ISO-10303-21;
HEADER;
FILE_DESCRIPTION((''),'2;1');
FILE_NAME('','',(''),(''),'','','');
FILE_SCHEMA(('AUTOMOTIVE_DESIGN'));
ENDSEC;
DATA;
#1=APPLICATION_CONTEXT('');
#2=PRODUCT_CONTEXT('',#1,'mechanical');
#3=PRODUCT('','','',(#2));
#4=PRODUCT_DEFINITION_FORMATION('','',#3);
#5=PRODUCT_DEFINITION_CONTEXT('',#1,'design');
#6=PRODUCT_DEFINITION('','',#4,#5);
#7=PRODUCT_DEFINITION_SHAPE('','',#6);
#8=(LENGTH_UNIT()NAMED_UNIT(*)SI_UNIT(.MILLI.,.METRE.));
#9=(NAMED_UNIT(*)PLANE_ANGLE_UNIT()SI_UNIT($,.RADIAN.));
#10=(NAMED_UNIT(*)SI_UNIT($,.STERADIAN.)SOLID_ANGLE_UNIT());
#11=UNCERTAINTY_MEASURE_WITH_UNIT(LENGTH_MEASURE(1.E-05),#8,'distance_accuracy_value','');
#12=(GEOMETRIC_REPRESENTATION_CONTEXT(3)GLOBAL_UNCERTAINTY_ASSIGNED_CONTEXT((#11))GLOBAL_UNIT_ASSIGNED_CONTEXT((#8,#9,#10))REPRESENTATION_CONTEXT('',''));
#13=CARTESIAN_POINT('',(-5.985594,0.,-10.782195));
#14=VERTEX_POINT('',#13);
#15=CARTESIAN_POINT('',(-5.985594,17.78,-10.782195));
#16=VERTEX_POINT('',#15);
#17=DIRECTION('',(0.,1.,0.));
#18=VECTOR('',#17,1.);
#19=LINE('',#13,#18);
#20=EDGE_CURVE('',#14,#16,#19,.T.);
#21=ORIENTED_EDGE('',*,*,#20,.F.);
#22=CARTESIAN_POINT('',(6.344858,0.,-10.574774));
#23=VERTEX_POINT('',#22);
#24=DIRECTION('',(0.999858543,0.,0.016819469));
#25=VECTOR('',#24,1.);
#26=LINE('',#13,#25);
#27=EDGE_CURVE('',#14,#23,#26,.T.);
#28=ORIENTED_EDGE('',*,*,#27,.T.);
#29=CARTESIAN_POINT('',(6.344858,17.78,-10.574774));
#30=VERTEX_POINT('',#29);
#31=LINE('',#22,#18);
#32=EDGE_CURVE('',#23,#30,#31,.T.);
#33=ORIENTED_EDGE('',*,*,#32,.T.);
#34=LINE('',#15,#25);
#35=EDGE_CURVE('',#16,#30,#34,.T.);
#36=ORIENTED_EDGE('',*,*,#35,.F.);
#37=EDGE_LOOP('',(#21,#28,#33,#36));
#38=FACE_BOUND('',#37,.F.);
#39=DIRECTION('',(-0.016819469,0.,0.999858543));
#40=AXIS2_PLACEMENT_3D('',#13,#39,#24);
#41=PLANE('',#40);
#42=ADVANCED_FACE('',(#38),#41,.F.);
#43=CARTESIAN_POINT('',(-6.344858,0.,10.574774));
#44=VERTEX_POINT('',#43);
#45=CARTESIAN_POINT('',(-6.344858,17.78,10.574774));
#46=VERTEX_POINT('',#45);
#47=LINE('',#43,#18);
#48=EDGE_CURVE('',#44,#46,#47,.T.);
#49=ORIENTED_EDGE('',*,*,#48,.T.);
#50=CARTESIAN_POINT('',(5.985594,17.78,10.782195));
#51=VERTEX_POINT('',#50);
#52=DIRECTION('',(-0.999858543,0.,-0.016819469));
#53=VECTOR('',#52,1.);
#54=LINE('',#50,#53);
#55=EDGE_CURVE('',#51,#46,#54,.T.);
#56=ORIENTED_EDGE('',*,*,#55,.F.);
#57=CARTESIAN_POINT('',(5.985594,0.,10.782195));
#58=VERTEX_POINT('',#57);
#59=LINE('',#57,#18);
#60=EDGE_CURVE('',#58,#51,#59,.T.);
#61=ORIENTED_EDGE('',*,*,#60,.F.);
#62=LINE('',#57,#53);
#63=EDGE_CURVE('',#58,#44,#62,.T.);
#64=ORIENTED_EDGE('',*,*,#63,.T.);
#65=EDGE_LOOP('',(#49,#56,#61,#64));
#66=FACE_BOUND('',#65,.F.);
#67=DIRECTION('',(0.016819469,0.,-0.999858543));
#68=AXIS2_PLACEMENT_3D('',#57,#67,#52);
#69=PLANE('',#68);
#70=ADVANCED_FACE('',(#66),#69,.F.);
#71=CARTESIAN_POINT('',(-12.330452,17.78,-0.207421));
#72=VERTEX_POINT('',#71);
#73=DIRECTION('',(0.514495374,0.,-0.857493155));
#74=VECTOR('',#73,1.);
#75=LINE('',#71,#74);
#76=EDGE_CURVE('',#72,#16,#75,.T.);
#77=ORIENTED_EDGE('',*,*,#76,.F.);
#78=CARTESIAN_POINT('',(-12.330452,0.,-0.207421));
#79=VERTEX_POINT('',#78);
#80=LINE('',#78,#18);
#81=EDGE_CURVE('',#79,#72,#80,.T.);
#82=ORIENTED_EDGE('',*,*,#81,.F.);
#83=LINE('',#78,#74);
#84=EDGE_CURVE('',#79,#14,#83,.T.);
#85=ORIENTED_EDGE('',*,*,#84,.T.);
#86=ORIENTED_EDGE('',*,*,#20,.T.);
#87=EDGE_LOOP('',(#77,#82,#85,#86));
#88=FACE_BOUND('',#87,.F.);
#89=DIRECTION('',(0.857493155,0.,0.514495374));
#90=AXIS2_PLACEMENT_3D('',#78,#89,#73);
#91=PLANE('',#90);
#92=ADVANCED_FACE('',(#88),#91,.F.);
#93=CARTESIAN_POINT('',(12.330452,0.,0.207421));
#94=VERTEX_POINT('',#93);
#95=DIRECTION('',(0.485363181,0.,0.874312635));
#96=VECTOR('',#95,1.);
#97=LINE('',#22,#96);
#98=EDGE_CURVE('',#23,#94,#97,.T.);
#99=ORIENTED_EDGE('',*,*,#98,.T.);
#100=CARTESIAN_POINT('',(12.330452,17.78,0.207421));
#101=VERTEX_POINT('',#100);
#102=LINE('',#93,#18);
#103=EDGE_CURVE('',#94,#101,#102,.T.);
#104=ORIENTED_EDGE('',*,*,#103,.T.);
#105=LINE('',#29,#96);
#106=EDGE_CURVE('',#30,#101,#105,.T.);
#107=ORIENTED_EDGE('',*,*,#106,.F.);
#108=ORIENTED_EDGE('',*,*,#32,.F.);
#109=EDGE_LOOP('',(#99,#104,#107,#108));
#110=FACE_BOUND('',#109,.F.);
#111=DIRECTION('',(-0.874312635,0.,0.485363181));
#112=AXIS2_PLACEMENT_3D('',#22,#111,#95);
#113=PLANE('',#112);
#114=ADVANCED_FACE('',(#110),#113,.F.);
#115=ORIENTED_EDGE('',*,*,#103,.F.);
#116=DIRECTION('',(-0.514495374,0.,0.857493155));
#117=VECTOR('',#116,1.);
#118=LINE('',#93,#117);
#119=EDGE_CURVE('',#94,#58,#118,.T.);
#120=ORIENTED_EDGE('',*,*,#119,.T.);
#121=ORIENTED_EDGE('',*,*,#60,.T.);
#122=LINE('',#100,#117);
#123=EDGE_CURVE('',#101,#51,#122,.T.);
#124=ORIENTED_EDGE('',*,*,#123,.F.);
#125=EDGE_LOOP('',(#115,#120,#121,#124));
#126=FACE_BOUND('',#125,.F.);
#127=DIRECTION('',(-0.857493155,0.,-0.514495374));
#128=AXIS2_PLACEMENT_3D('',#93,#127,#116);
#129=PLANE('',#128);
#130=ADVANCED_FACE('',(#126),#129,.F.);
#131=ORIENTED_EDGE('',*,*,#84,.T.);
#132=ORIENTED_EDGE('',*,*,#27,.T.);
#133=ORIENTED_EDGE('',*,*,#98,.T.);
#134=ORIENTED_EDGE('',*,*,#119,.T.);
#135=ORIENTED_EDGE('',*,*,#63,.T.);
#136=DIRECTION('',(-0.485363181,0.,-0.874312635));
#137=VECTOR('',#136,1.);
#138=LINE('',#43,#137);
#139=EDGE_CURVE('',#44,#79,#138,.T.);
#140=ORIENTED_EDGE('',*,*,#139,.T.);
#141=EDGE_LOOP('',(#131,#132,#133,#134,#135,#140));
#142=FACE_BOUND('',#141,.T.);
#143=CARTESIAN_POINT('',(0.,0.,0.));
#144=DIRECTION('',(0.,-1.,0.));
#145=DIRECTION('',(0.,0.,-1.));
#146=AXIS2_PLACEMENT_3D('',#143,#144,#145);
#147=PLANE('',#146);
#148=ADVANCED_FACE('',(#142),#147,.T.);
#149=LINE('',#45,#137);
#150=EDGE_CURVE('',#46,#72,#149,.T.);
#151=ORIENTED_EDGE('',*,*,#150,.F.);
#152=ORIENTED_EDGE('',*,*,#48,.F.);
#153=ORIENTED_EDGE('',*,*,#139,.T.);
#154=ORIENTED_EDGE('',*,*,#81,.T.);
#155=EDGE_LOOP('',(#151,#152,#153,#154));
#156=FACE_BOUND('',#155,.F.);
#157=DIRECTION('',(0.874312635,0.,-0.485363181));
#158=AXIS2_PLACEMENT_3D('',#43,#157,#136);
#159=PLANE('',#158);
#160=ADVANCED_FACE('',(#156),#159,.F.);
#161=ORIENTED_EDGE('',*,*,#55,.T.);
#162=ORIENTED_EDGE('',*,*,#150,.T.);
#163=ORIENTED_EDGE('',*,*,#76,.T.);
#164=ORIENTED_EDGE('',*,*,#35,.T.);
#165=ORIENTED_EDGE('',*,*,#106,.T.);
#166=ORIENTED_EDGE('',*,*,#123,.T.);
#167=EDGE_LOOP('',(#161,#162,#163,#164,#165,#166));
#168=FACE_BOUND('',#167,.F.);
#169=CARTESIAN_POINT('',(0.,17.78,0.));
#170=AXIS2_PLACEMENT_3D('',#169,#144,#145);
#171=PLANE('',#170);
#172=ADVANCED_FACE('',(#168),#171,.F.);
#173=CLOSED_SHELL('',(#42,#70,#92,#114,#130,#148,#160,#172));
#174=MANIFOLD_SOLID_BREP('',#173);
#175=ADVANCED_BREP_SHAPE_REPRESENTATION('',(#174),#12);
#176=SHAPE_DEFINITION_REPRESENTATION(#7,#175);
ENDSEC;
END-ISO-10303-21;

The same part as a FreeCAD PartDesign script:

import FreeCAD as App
import Part
import Sketcher
from FreeCAD import Vector
Q = App.Units.Quantity


def add_polygon(sketch, points):
    """Adds a closed chain of lines whose ends are joined by coincident constraints."""
    first, n = sketch.GeometryCount, len(points)
    for a, b in zip(points, points[1:] + points[:1]):
        sketch.addGeometry(Part.LineSegment(App.Vector(*a, 0), App.Vector(*b, 0)), False)
    for i in range(n):
        sketch.addConstraint(Sketcher.Constraint("Coincident", first + i, 2, first + (i + 1) % n, 1))

doc = App.newDocument("Part")
body = doc.addObject("PartDesign::Body", "Body")

# Sketch on XZ plane
sketch1 = body.newObject("Sketcher::SketchObject", "Sketch")
sketch1.AttachmentSupport = (doc.getObject("XZ_Plane"), [""])
sketch1.MapMode = "FlatFace"
add_polygon(sketch1, [(12.330452, 0.207421), (5.985594, 10.782195), (-6.344858, 10.574774), (-12.330452, -0.207421), (-5.985594, -10.782195), (6.344858, -10.574774)])  # lines 0-5
sketch1.addConstraint([
    Sketcher.Constraint("Symmetric", 0, 2, 3, 2, -1, 1),
    Sketcher.Constraint("Symmetric", 1, 2, 4, 2, -1, 1),
    Sketcher.Constraint("Symmetric", 2, 2, 5, 2, -1, 1),
    Sketcher.Constraint("Equal", 0, 1),
    Sketcher.Constraint("Equal", 1, 2),
    Sketcher.Constraint("DistanceX", 1, 2, -1, 1, 6.344858),
    Sketcher.Constraint("DistanceX", 2, 2, -1, 1, 12.330452),
    Sketcher.Constraint("DistanceY", 2, 2, -1, 1, 0.207421),
    Sketcher.Constraint("DistanceY", 1, 2, 0, 2, 0.207421),
])

# Sketch on XY plane
sketch2 = body.newObject("Sketcher::SketchObject", "Sketch001")
sketch2.AttachmentSupport = (doc.getObject("XY_Plane"), [""])
sketch2.MapMode = "FlatFace"
sketch2.addGeometry(Part.LineSegment(Vector(0, 0, 0), Vector(0, 17.78, 0)), False)
sketch2.addConstraint([
    Sketcher.Constraint("Vertical", 0),
    Sketcher.Constraint("Coincident", 0, 1, -1, 1),
    Sketcher.Constraint("DistanceY", 0, 1, 0, 2, Q("0.7 in")),
])
doc.recompute()

additivepipe = body.newObject("PartDesign::AdditivePipe", "AdditivePipe")
additivepipe.Profile = sketch1
additivepipe.Spine = (sketch2, ["Edge1"])

doc.recompute()
